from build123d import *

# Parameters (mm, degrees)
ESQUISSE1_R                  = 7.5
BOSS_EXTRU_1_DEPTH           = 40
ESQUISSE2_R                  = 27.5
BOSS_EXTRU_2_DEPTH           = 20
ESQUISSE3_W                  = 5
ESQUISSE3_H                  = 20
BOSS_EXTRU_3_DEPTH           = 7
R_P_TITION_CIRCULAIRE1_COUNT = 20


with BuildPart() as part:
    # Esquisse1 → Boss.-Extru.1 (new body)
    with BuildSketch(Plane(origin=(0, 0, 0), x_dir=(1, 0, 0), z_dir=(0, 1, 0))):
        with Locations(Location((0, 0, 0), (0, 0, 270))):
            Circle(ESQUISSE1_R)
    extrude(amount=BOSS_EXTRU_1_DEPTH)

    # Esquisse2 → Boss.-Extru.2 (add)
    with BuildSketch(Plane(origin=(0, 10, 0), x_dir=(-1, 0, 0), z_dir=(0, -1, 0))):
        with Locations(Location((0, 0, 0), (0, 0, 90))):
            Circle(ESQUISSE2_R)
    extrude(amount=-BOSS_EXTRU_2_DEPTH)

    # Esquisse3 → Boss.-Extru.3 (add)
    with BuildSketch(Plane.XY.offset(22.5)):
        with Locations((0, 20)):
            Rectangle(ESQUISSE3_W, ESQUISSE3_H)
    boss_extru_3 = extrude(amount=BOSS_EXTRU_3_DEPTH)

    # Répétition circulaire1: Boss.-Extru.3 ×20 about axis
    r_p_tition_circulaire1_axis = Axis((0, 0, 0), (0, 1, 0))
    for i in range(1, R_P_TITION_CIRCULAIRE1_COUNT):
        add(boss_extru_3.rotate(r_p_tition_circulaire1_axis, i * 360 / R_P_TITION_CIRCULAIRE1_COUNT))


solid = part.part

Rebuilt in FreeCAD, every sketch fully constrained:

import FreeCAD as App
import Part
import Sketcher

V = App.Vector
Q = App.Units.Quantity

doc = App.newDocument("Part")
body = doc.addObject("PartDesign::Body", "Body")

# Sketch on XZ plane
sketch1 = body.newObject("Sketcher::SketchObject", "Sketch")
sketch1.AttachmentSupport = (doc.getObject("XZ_Plane"), [""])
sketch1.MapMode = "FlatFace"
sketch1.addGeometry(Part.Circle(V(0, 0, 0), V(0, 0, 1), 8), False)
sketch1.addConstraint(Sketcher.Constraint("Coincident", 0, 3, -1, 1))
sketch1.addConstraint(Sketcher.Constraint("Diameter", 0, Q("15 mm")))
pad1 = body.newObject("PartDesign::Pad", "Pad")
pad1.Profile = sketch1
pad1.Length = 40
pad1.Reversed = True

# Sketch on XZ plane
sketch2 = body.newObject("Sketcher::SketchObject", "Sketch001")
sketch2.AttachmentSupport = (doc.getObject("XZ_Plane"), [""])
sketch2.MapMode = "FlatFace"
sketch2.AttachmentOffset = App.Placement(V(0, 0, -10), App.Rotation())
sketch2.addGeometry(Part.Circle(V(0, 0, 0), V(0, 0, 1), 28), False)
sketch2.addConstraint(Sketcher.Constraint("Coincident", 0, 3, -1, 1))
sketch2.addConstraint(Sketcher.Constraint("Diameter", 0, Q("55 mm")))
pad2 = body.newObject("PartDesign::Pad", "Pad001")
pad2.Profile = sketch2
pad2.Length = 20
pad2.Reversed = True

# Sketch on XY plane
sketch3 = body.newObject("Sketcher::SketchObject", "Sketch002")
sketch3.AttachmentSupport = (doc.getObject("XY_Plane"), [""])
sketch3.MapMode = "FlatFace"
sketch3.AttachmentOffset = App.Placement(V(0, 0, 22.5), App.Rotation())
sketch3.addGeometry(Part.LineSegment(V(-2, 30, 0), V(-2, 10, 0)), False)
sketch3.addGeometry(Part.LineSegment(V(-2, 10, 0), V(2, 10, 0)), False)
sketch3.addGeometry(Part.LineSegment(V(2, 10, 0), V(2, 30, 0)), False)
sketch3.addGeometry(Part.LineSegment(V(2, 30, 0), V(-2, 30, 0)), False)
sketch3.addConstraint(Sketcher.Constraint("Coincident", 0, 2, 1, 1))
sketch3.addConstraint(Sketcher.Constraint("Coincident", 1, 2, 2, 1))
sketch3.addConstraint(Sketcher.Constraint("Coincident", 2, 2, 3, 1))
sketch3.addConstraint(Sketcher.Constraint("Coincident", 3, 2, 0, 1))
sketch3.addConstraint(Sketcher.Constraint("Vertical", 0))
sketch3.addConstraint(Sketcher.Constraint("Horizontal", 1))
sketch3.addConstraint(Sketcher.Constraint("Vertical", 2))
sketch3.addConstraint(Sketcher.Constraint("Horizontal", 3))
sketch3.addConstraint(Sketcher.Constraint("DistanceX", 1, 1, 1, 2, Q("5 mm")))
sketch3.addConstraint(Sketcher.Constraint("DistanceY", 0, 2, 0, 1, Q("20 mm")))
sketch3.addConstraint(Sketcher.Constraint("DistanceY", -1, 1, 0, 2, Q("10 mm")))
sketch3.addConstraint(Sketcher.Constraint("DistanceX", 0, 2, -1, 1, Q("2.5 mm")))
pad3 = body.newObject("PartDesign::Pad", "Pad002")
pad3.Profile = sketch3
pad3.Length = 7
doc.recompute()

polarpattern = body.newObject("PartDesign::PolarPattern", "PolarPattern")
polarpattern.Originals = [pad3]
polarpattern.Axis = (doc.getObject("Y_Axis"), [""])
polarpattern.Angle = 360
polarpattern.Occurrences = 20
body.Tip = polarpattern

doc.recompute()
